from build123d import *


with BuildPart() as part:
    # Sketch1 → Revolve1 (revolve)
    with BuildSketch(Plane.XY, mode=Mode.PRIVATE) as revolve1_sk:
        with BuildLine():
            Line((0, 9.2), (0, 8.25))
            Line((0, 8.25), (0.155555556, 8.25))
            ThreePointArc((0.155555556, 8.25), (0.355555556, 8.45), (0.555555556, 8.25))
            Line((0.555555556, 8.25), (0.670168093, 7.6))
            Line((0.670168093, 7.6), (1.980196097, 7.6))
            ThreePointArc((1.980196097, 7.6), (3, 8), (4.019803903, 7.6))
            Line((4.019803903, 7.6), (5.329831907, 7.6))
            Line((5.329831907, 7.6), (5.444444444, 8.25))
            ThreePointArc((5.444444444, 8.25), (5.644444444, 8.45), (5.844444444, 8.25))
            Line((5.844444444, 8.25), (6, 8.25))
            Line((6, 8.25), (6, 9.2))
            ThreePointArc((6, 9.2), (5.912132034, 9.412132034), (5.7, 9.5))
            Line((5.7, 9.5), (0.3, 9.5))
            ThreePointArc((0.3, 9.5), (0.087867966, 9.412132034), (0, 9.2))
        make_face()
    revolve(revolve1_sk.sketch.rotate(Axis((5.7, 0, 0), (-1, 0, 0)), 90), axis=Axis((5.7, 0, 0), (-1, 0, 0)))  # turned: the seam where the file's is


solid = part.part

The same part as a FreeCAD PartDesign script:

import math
import FreeCAD as App
import Part
import Sketcher
Q = App.Units.Quantity

doc = App.newDocument("Part")
params = doc.addObject("Spreadsheet::Sheet", "Params")
for row, (alias, value) in enumerate([
    ("sketch1_radius", "0.2 mm"),
    ("sketch1_radius2", "1.5 mm"),
    ("sketch1_radius3", "0.3 mm"),
    ("sketch1_width", "5.4 mm"),
    ("sketch1_height", "0.95 mm"),
    ("revolution_angle", "360 deg"),
], start=1):
    params.set(f"A{row}", alias)
    params.set(f"B{row}", "=" + value)
    params.setAlias(f"B{row}", alias)

body = doc.addObject("PartDesign::Body", "Body")

sketch1 = doc.addObject("Sketcher::SketchObject", "Sketch")
body.addObject(sketch1)
sketch1.AttachmentSupport = (doc.XY_Plane, [""])
sketch1.MapMode = "FlatFace"
sketch1.addGeometry(Part.LineSegment(App.Vector(0, 9.2, 0), App.Vector(0, 8.25, 0)), False)
sketch1.addGeometry(Part.LineSegment(App.Vector(0, 8.25, 0), App.Vector(0.16, 8.25, 0)), False)
sketch1.addGeometry(Part.ArcOfCircle(Part.Circle(App.Vector(0.36, 8.25, 0), App.Vector(0, 0, 1), 0.2), math.radians(0), math.radians(180)), False)
sketch1.addGeometry(Part.LineSegment(App.Vector(0.56, 8.25, 0), App.Vector(0.67, 7.6, 0)), False)
sketch1.addGeometry(Part.LineSegment(App.Vector(0.67, 7.6, 0), App.Vector(1.98, 7.6, 0)), False)
sketch1.addGeometry(Part.ArcOfCircle(Part.Circle(App.Vector(3, 6.5, 0), App.Vector(0, 0, 1), 1.5), math.radians(47), math.radians(133)), False)
sketch1.addGeometry(Part.LineSegment(App.Vector(4.02, 7.6, 0), App.Vector(5.33, 7.6, 0)), False)
sketch1.addGeometry(Part.LineSegment(App.Vector(5.33, 7.6, 0), App.Vector(5.44, 8.25, 0)), False)
sketch1.addGeometry(Part.ArcOfCircle(Part.Circle(App.Vector(5.64, 8.25, 0), App.Vector(0, 0, 1), 0.2), math.radians(0), math.radians(180)), False)
sketch1.addGeometry(Part.LineSegment(App.Vector(5.84, 8.25, 0), App.Vector(6, 8.25, 0)), False)
sketch1.addGeometry(Part.LineSegment(App.Vector(6, 8.25, 0), App.Vector(6, 9.2, 0)), False)
sketch1.addGeometry(Part.ArcOfCircle(Part.Circle(App.Vector(5.7, 9.2, 0), App.Vector(0, 0, 1), 0.3), math.radians(0), math.radians(90)), False)
sketch1.addGeometry(Part.LineSegment(App.Vector(5.7, 9.5, 0), App.Vector(0.3, 9.5, 0)), False)
sketch1.addGeometry(Part.ArcOfCircle(Part.Circle(App.Vector(0.3, 9.2, 0), App.Vector(0, 0, 1), 0.3), math.radians(90), math.radians(180)), False)
sketch1.addConstraint(Sketcher.Constraint("Coincident", 0, 2, 1, 1))
sketch1.addConstraint(Sketcher.Constraint("Coincident", 1, 2, 2, 2))
sketch1.addConstraint(Sketcher.Constraint("Coincident", 2, 1, 3, 1))
sketch1.addConstraint(Sketcher.Constraint("Coincident", 3, 2, 4, 1))
sketch1.addConstraint(Sketcher.Constraint("Coincident", 4, 2, 5, 2))
sketch1.addConstraint(Sketcher.Constraint("Coincident", 5, 1, 6, 1))
sketch1.addConstraint(Sketcher.Constraint("Coincident", 6, 2, 7, 1))
sketch1.addConstraint(Sketcher.Constraint("Coincident", 7, 2, 8, 2))
sketch1.addConstraint(Sketcher.Constraint("Coincident", 8, 1, 9, 1))
sketch1.addConstraint(Sketcher.Constraint("Coincident", 9, 2, 10, 1))
sketch1.addConstraint(Sketcher.Constraint("Tangent", 10, 2, 11, 1))
sketch1.addConstraint(Sketcher.Constraint("Tangent", 11, 2, 12, 1))
sketch1.addConstraint(Sketcher.Constraint("Tangent", 12, 2, 13, 1))
sketch1.addConstraint(Sketcher.Constraint("Tangent", 13, 2, 0, 1))
sketch1.addConstraint(Sketcher.Constraint("Vertical", 0))
sketch1.addConstraint(Sketcher.Constraint("Horizontal", 1))
sketch1.addConstraint(Sketcher.Constraint("Horizontal", 4))
sketch1.addConstraint(Sketcher.Constraint("Horizontal", 6))
sketch1.addConstraint(Sketcher.Constraint("Horizontal", 9))
sketch1.addConstraint(Sketcher.Constraint("Vertical", 10))
sketch1.addConstraint(Sketcher.Constraint("Horizontal", 12))
sketch1.addConstraint(Sketcher.Constraint("Equal", 2, 8))
sketch1.addConstraint(Sketcher.Constraint("Equal", 11, 13))
sketch1.addConstraint(Sketcher.Constraint("PointOnObject", 0, 2, -2))
sketch1.addConstraint(Sketcher.Constraint("Horizontal", 2, 3, 8, 3))
sketch1.addConstraint(Sketcher.Constraint("Horizontal", 8, 3, 0, 2))
sketch1.addConstraint(Sketcher.Constraint("Horizontal", 1, 2, 2, 1))
sketch1.addConstraint(Sketcher.Constraint("Horizontal", 4, 2, 5, 1))
sketch1.addConstraint(Sketcher.Constraint("Horizontal", 2, 1, 7, 2))
sketch1.addConstraint(Sketcher.Constraint("Horizontal", 7, 2, 8, 1))
sketch1.addConstraint(Sketcher.Constraint("Equal", 4, 6))
sketch1.addConstraint(Sketcher.Constraint("Equal", 1, 9))
sketch1.addConstraint(Sketcher.Constraint("Equal", 3, 7))
sketch1.addConstraint(Sketcher.Constraint("Radius", 2, Q("0.2 mm")))
sketch1.addConstraint(Sketcher.Constraint("Radius", 5, Q("1.5 mm")))
sketch1.addConstraint(Sketcher.Constraint("Radius", 11, Q("0.3 mm")))
sketch1.addConstraint(Sketcher.Constraint("Angle", 3, Q("-80 deg")))
sketch1.addConstraint(Sketcher.Constraint("DistanceX", 12, 2, 12, 1, Q("5.4 mm")))
sketch1.addConstraint(Sketcher.Constraint("DistanceY", 0, 2, 0, 1, Q("0.95 mm")))
sketch1.addConstraint(Sketcher.Constraint("DistanceY", -1, 1, 5, 3, Q("6.5 mm")))
sketch1.addConstraint(Sketcher.Constraint("DistanceY", -1, 1, 11, 3, Q("9.2 mm")))
sketch1.addConstraint(Sketcher.Constraint("DistanceY", -1, 1, 3, 2, Q("7.6 mm")))
sketch1.addConstraint(Sketcher.Constraint("DistanceX", 4, 1, 4, 2, Q("1.310028 mm")))
sketch1.setExpression("Constraints[33]", "Params.sketch1_radius")
sketch1.setExpression("Constraints[34]", "Params.sketch1_radius2")
sketch1.setExpression("Constraints[35]", "Params.sketch1_radius3")
sketch1.setExpression("Constraints[37]", "Params.sketch1_width")
sketch1.setExpression("Constraints[38]", "Params.sketch1_height")
revolution = doc.addObject("PartDesign::Revolution", "Revolution")
body.addObject(revolution)
revolution.Profile = sketch1
revolution.ReferenceAxis = (sketch1, ["H_Axis"])
revolution.setExpression("Angle", "Params.revolution_angle")

doc.recompute()
